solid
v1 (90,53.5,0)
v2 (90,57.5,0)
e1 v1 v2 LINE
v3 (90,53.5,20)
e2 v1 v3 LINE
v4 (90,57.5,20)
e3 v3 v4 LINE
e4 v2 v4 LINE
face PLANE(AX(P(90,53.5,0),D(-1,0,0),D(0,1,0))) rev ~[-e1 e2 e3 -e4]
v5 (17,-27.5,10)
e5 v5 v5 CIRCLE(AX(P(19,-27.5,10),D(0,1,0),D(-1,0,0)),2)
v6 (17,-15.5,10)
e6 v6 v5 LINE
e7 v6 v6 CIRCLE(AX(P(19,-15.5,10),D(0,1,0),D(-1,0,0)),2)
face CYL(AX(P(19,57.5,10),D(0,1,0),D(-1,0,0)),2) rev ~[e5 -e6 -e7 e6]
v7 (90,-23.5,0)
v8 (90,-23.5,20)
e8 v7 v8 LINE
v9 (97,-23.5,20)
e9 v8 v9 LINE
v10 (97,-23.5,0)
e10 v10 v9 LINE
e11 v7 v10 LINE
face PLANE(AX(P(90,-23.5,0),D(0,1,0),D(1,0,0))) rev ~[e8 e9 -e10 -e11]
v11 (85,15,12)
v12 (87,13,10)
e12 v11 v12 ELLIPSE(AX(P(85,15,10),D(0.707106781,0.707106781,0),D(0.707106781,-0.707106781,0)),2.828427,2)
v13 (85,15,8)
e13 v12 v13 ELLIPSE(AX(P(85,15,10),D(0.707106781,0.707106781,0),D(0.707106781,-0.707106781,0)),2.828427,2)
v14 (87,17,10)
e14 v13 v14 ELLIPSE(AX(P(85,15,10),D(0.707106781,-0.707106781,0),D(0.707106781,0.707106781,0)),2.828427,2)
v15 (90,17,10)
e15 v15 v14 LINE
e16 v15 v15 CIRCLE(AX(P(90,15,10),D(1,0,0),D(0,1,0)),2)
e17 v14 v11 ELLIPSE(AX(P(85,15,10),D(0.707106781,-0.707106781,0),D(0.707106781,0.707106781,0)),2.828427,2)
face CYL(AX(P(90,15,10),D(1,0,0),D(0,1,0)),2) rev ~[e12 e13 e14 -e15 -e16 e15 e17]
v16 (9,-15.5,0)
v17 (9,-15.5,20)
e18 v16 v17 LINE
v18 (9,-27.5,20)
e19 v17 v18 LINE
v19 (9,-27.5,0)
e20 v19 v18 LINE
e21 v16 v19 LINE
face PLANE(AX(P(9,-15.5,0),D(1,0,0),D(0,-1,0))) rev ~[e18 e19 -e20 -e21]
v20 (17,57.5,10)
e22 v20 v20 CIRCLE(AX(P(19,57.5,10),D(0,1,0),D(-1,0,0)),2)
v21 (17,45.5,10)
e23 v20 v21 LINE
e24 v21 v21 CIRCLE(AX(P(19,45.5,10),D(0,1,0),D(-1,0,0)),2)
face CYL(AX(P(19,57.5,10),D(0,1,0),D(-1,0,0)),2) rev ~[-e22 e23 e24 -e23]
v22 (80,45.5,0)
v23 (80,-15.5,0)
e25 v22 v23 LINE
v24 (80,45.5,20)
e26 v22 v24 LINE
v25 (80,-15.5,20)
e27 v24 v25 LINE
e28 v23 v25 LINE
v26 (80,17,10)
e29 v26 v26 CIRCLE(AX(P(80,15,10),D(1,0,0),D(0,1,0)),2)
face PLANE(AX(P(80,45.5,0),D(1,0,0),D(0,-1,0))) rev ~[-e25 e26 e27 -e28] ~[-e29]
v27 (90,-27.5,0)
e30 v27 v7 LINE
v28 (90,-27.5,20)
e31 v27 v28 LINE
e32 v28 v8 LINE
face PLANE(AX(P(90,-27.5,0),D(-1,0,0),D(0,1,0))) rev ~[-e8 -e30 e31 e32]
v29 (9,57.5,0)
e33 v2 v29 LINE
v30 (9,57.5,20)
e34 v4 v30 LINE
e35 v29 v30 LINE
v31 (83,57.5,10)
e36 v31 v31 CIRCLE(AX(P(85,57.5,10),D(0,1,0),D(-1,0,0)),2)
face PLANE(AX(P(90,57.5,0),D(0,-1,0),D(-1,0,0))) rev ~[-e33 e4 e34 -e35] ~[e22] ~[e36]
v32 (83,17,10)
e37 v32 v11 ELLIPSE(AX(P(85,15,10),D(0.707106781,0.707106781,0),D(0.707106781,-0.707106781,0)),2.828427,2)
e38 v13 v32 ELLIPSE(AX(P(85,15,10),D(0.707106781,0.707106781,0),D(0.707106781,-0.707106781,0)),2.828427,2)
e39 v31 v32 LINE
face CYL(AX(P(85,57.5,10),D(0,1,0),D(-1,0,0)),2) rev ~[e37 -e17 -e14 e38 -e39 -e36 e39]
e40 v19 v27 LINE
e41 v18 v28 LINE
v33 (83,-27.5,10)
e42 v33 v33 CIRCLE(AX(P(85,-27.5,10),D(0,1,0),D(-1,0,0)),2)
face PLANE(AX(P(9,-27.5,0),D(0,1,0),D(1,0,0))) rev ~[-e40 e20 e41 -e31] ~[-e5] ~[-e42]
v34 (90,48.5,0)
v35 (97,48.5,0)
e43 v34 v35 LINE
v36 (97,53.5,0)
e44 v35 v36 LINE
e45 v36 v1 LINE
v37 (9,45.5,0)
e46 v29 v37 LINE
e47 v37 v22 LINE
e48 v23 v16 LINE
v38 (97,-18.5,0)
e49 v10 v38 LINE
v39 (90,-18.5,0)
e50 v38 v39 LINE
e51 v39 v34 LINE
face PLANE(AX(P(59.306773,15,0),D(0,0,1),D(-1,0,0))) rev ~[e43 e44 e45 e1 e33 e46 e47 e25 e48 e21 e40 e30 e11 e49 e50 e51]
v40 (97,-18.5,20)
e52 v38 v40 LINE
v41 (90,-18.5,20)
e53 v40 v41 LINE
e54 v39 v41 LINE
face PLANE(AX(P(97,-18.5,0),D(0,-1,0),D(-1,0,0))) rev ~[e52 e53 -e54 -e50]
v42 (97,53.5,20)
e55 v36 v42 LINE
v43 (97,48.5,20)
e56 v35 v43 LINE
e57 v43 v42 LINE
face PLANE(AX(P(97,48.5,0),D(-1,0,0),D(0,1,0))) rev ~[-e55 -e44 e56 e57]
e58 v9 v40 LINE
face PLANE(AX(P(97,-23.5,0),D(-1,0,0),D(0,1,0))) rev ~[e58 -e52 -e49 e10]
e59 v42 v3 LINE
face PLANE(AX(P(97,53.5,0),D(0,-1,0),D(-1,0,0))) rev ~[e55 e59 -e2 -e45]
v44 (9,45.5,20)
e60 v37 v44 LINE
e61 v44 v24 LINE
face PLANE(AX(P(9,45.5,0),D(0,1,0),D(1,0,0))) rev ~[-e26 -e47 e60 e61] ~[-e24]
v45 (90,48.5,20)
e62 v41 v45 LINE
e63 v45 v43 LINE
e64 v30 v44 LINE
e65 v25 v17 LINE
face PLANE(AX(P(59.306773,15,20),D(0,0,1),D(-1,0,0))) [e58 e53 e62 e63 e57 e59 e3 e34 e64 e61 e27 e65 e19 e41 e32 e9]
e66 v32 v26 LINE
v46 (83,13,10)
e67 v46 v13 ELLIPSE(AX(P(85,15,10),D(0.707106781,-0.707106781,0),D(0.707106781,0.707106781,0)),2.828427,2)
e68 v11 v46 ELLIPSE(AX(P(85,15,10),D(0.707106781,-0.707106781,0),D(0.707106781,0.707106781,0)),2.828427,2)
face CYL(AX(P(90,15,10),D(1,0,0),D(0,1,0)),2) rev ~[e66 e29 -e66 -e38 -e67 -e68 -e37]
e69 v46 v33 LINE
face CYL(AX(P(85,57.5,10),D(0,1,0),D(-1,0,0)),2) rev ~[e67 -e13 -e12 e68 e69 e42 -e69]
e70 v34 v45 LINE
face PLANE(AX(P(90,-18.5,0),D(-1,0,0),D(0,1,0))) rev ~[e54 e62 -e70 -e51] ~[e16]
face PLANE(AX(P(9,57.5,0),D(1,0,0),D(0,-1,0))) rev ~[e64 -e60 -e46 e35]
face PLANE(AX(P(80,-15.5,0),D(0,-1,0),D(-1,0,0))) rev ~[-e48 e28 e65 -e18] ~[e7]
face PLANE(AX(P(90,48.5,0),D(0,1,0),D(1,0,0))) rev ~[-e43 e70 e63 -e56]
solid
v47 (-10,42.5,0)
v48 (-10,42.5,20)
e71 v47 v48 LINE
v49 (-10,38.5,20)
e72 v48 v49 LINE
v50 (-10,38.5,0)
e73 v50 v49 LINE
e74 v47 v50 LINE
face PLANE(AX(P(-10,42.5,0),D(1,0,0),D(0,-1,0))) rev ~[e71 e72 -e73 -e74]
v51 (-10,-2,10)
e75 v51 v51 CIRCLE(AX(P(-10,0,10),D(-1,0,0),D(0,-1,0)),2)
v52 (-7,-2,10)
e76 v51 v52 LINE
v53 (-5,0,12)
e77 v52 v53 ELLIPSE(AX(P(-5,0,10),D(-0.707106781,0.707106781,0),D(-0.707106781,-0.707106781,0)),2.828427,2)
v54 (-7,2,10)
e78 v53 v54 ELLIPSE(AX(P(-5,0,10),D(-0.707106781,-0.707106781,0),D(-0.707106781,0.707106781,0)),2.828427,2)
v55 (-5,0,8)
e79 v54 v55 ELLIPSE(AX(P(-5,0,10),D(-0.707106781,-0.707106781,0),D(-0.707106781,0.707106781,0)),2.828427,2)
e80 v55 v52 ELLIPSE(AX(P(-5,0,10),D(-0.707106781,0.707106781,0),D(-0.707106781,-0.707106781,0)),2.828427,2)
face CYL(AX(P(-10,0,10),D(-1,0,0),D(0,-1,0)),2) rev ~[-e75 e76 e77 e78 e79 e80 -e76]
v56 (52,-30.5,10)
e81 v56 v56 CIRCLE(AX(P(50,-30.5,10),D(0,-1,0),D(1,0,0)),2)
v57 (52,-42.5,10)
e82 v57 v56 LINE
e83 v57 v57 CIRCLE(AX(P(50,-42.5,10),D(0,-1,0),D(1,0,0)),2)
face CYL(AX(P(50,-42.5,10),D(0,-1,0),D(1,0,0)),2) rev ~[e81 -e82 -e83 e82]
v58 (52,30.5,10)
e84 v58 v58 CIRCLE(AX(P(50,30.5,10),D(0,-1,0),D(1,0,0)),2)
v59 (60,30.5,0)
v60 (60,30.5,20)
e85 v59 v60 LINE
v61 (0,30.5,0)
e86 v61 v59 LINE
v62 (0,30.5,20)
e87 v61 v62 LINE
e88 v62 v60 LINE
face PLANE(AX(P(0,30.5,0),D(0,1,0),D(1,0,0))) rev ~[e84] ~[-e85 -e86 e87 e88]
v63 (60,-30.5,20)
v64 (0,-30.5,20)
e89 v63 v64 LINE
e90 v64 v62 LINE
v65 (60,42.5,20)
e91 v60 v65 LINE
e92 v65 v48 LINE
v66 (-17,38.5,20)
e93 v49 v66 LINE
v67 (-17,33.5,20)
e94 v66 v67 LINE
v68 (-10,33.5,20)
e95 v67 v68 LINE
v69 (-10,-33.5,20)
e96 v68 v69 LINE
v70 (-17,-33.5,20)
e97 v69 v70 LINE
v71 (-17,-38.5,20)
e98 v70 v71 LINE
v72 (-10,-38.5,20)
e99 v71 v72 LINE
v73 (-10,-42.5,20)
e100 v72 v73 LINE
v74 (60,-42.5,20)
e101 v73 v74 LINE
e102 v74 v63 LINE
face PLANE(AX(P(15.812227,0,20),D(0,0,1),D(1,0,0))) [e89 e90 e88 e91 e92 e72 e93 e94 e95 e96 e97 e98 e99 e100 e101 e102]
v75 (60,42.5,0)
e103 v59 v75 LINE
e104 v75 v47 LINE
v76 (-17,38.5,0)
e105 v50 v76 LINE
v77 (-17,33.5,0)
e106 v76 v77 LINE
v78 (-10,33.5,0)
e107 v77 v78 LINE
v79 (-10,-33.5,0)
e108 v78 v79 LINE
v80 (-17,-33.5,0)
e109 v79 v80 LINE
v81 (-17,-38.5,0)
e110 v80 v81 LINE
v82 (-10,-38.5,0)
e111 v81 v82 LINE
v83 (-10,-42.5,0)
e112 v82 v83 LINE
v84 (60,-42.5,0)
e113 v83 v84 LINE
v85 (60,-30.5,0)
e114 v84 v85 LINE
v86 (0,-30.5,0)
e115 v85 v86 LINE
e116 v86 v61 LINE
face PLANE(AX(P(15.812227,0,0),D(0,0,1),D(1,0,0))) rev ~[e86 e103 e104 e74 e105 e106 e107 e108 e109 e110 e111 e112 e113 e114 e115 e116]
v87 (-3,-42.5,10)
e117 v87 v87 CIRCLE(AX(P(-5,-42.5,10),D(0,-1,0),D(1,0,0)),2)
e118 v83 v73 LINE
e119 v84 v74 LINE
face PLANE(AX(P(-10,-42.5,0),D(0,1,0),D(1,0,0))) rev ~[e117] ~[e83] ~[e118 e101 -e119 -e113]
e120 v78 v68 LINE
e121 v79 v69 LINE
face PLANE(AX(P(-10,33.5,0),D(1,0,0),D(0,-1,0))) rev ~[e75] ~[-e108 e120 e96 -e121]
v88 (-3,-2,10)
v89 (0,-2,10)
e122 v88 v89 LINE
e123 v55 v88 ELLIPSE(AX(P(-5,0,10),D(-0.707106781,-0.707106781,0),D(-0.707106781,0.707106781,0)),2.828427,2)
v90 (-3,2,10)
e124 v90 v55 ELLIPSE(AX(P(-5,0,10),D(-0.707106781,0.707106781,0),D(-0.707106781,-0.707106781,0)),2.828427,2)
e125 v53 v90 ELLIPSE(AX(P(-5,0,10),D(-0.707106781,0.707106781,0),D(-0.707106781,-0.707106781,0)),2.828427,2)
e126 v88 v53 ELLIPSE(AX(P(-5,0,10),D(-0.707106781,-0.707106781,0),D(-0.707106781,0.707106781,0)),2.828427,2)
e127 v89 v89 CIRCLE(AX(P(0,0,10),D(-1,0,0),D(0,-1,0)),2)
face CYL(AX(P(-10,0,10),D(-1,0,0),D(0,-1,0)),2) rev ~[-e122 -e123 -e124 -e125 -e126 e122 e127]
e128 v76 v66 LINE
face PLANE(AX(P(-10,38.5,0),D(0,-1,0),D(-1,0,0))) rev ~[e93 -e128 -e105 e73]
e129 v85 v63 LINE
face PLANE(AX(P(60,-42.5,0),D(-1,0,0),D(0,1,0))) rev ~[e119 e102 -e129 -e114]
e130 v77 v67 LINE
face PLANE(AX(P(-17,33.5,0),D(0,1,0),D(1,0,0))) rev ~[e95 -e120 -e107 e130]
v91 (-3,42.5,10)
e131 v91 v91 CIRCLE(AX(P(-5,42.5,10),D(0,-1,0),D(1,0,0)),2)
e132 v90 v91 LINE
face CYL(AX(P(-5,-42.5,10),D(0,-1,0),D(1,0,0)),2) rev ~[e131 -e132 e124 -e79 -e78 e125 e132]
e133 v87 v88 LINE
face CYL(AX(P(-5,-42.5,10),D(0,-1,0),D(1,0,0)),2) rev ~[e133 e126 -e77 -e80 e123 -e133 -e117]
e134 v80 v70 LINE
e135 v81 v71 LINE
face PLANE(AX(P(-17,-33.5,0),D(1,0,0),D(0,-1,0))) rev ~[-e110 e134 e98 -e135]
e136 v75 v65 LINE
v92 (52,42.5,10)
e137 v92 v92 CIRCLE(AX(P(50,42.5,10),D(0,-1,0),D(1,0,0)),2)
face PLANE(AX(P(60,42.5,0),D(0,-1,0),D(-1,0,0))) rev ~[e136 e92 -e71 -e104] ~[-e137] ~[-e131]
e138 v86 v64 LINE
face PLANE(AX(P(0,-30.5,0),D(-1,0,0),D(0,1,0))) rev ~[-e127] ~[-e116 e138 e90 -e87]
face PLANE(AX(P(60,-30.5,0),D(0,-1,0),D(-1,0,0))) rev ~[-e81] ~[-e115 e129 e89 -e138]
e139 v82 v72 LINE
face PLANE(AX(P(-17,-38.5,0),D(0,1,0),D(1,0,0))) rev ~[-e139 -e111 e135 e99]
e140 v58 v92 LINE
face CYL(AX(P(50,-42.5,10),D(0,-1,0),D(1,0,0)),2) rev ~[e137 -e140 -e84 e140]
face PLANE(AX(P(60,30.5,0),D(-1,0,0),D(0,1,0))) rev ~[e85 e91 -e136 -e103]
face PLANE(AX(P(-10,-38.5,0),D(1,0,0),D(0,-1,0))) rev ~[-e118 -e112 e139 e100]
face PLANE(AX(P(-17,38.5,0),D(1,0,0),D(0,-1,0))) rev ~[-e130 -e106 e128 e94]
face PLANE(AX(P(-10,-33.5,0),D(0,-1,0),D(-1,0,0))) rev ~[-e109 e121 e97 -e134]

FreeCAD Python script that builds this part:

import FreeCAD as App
import Part
import Sketcher

doc = App.newDocument("Part")
params = doc.addObject("Spreadsheet::Sheet", "Params")
for row, (alias, value) in enumerate([
    ("sketch1_width", "70 mm"),
    ("sketch1_width2", "60 mm"),
    ("sketch1_width3", "7 mm"),
    ("sketch1_height", "12 mm"),
    ("sketch1_height2", "61 mm"),
    ("pad1_length", "20 mm"),
    ("sketch2_diameter", "4 mm"),
    ("sketch3_diameter", "4 mm"),
    ("sketch4_width", "81 mm"),
    ("sketch4_width2", "71 mm"),
    ("sketch4_width3", "7 mm"),
    ("sketch4_height", "12 mm"),
    ("sketch4_height2", "61 mm"),
    ("pad2_length", "20 mm"),
    ("sketch5_diameter", "4 mm"),
    ("sketch6_diameter", "4 mm"),
], start=1):
    params.set(f"A{row}", alias)
    params.set(f"B{row}", "=" + value)
    params.setAlias(f"B{row}", alias)

body = doc.addObject("PartDesign::Body", "Body")

sketch1 = doc.addObject("Sketcher::SketchObject", "Sketch")
body.addObject(sketch1)
sketch1.AttachmentSupport = (doc.XY_Plane, [""])
sketch1.MapMode = "FlatFace"
sketch1.addGeometry([
    Part.LineSegment(App.Vector(-10, -42.5, 0), App.Vector(60, -42.5, 0)),
    Part.LineSegment(App.Vector(60, -42.5, 0), App.Vector(60, -30.5, 0)),
    Part.LineSegment(App.Vector(60, -30.5, 0), App.Vector(0, -30.5, 0)),
    Part.LineSegment(App.Vector(0, -30.5, 0), App.Vector(0, 30.5, 0)),
    Part.LineSegment(App.Vector(0, 30.5, 0), App.Vector(60, 30.5, 0)),
    Part.LineSegment(App.Vector(60, 30.5, 0), App.Vector(60, 42.5, 0)),
    Part.LineSegment(App.Vector(60, 42.5, 0), App.Vector(-10, 42.5, 0)),
    Part.LineSegment(App.Vector(-10, 42.5, 0), App.Vector(-10, 38.5, 0)),
    Part.LineSegment(App.Vector(-10, 38.5, 0), App.Vector(-17, 38.5, 0)),
    Part.LineSegment(App.Vector(-17, 38.5, 0), App.Vector(-17, 33.5, 0)),
    Part.LineSegment(App.Vector(-17, 33.5, 0), App.Vector(-10, 33.5, 0)),
    Part.LineSegment(App.Vector(-10, 33.5, 0), App.Vector(-10, -33.5, 0)),
    Part.LineSegment(App.Vector(-10, -33.5, 0), App.Vector(-17, -33.5, 0)),
    Part.LineSegment(App.Vector(-17, -33.5, 0), App.Vector(-17, -38.5, 0)),
    Part.LineSegment(App.Vector(-17, -38.5, 0), App.Vector(-10, -38.5, 0)),
    Part.LineSegment(App.Vector(-10, -38.5, 0), App.Vector(-10, -42.5, 0)),
], False)
sketch1.addConstraint([
    Sketcher.Constraint("Coincident", 0, 2, 1, 1),
    Sketcher.Constraint("Coincident", 1, 2, 2, 1),
    Sketcher.Constraint("Coincident", 2, 2, 3, 1),
    Sketcher.Constraint("Coincident", 3, 2, 4, 1),
    Sketcher.Constraint("Coincident", 4, 2, 5, 1),
    Sketcher.Constraint("Coincident", 5, 2, 6, 1),
    Sketcher.Constraint("Coincident", 6, 2, 7, 1),
    Sketcher.Constraint("Coincident", 7, 2, 8, 1),
    Sketcher.Constraint("Coincident", 8, 2, 9, 1),
    Sketcher.Constraint("Coincident", 9, 2, 10, 1),
    Sketcher.Constraint("Coincident", 10, 2, 11, 1),
    Sketcher.Constraint("Coincident", 11, 2, 12, 1),
    Sketcher.Constraint("Coincident", 12, 2, 13, 1),
    Sketcher.Constraint("Coincident", 13, 2, 14, 1),
    Sketcher.Constraint("Coincident", 14, 2, 15, 1),
    Sketcher.Constraint("Coincident", 15, 2, 0, 1),
    Sketcher.Constraint("Horizontal", 0),
    Sketcher.Constraint("Vertical", 1),
    Sketcher.Constraint("Horizontal", 2),
    Sketcher.Constraint("Vertical", 3),
    Sketcher.Constraint("Horizontal", 4),
    Sketcher.Constraint("Vertical", 5),
    Sketcher.Constraint("Horizontal", 6),
    Sketcher.Constraint("Vertical", 7),
    Sketcher.Constraint("Horizontal", 8),
    Sketcher.Constraint("Vertical", 9),
    Sketcher.Constraint("Horizontal", 10),
    Sketcher.Constraint("Vertical", 11),
    Sketcher.Constraint("Horizontal", 12),
    Sketcher.Constraint("Vertical", 13),
    Sketcher.Constraint("Horizontal", 14),
    Sketcher.Constraint("Vertical", 15),
    Sketcher.Constraint("Symmetric", 2, 2, 3, 2, -1, 1),
    Sketcher.Constraint("Symmetric", 0, 2, 5, 2, -1),
    Sketcher.Constraint("Symmetric", 9, 2, 12, 2, -1),
    Sketcher.Constraint("Symmetric", 7, 2, 14, 2, -1),
    Sketcher.Constraint("Vertical", 7, 2, 10, 2),
    Sketcher.Constraint("DistanceX", 0, 1, 0, 2, 70.0),
    Sketcher.Constraint("DistanceX", 2, 2, 2, 1, 60.0),
    Sketcher.Constraint("DistanceX", 8, 2, 8, 1, 7.0),
    Sketcher.Constraint("DistanceY", 1, 1, 1, 2, 12.0),
    Sketcher.Constraint("DistanceY", 3, 1, 3, 2, 61.0),
    Sketcher.Constraint("DistanceY", 7, 2, 7, 1, 4.0),
    Sketcher.Constraint("DistanceY", 9, 2, 9, 1, 5.0),
])
sketch1.setExpression("Constraints[37]", "Params.sketch1_width")
sketch1.setExpression("Constraints[38]", "Params.sketch1_width2")
sketch1.setExpression("Constraints[39]", "Params.sketch1_width3")
sketch1.setExpression("Constraints[40]", "Params.sketch1_height")
sketch1.setExpression("Constraints[41]", "Params.sketch1_height2")
pad1 = doc.addObject("PartDesign::Pad", "Pad")
body.addObject(pad1)
pad1.Profile = sketch1
pad1.setExpression("Length", "Params.pad1_length")

sketch2 = doc.addObject("Sketcher::SketchObject", "Sketch001")
body.addObject(sketch2)
sketch2.AttachmentSupport = (doc.YZ_Plane, [""])
sketch2.MapMode = "FlatFace"
sketch2.AttachmentOffset = App.Placement(App.Vector(0, 0, -10), App.Rotation())
sketch2.addGeometry(Part.Circle(App.Vector(0, 10, 0), App.Vector(0, 0, 1), 2), False)
sketch2.addConstraint([
    Sketcher.Constraint("PointOnObject", 0, 3, -2),
    Sketcher.Constraint("Diameter", 0, 4.0),
    Sketcher.Constraint("DistanceY", -1, 1, 0, 3, 10.0),
])
sketch2.setExpression("Constraints[1]", "Params.sketch2_diameter")
pocket1 = doc.addObject("PartDesign::Pocket", "Pocket")
body.addObject(pocket1)
pocket1.Profile = sketch2
pocket1.Type = "ThroughAll"
pocket1.Reversed = True

sketch3 = doc.addObject("Sketcher::SketchObject", "Sketch002")
body.addObject(sketch3)
sketch3.AttachmentSupport = (doc.XZ_Plane, [""])
sketch3.MapMode = "FlatFace"
sketch3.AttachmentOffset = App.Placement(App.Vector(0, 0, 42.5), App.Rotation())
sketch3.addGeometry([
    Part.Circle(App.Vector(-5, 10, 0), App.Vector(0, 0, 1), 2),
    Part.Circle(App.Vector(50, 10, 0), App.Vector(0, 0, 1), 2),
], False)
sketch3.addConstraint([
    Sketcher.Constraint("Equal", 0, 1),
    Sketcher.Constraint("Horizontal", 0, 3, 1, 3),
    Sketcher.Constraint("Diameter", 0, 4.0),
    Sketcher.Constraint("DistanceX", 0, 3, -1, 1, 5.0),
    Sketcher.Constraint("DistanceY", -1, 1, 0, 3, 10.0),
    Sketcher.Constraint("DistanceX", -1, 1, 1, 3, 50.0),
])
sketch3.setExpression("Constraints[2]", "Params.sketch3_diameter")
pocket2 = doc.addObject("PartDesign::Pocket", "Pocket001")
body.addObject(pocket2)
pocket2.Profile = sketch3
pocket2.Type = "ThroughAll"
body2 = doc.addObject("PartDesign::Body", "Body001")

sketch4 = doc.addObject("Sketcher::SketchObject", "Sketch003")
body2.addObject(sketch4)
sketch4.AttachmentSupport = (doc.getObject("XY_Plane001"), [""])
sketch4.MapMode = "FlatFace"
sketch4.addGeometry([
    Part.LineSegment(App.Vector(90, 57.5, 0), App.Vector(9, 57.5, 0)),
    Part.LineSegment(App.Vector(9, 57.5, 0), App.Vector(9, 45.5, 0)),
    Part.LineSegment(App.Vector(9, 45.5, 0), App.Vector(80, 45.5, 0)),
    Part.LineSegment(App.Vector(80, 45.5, 0), App.Vector(80, -15.5, 0)),
    Part.LineSegment(App.Vector(80, -15.5, 0), App.Vector(9, -15.5, 0)),
    Part.LineSegment(App.Vector(9, -15.5, 0), App.Vector(9, -27.5, 0)),
    Part.LineSegment(App.Vector(9, -27.5, 0), App.Vector(90, -27.5, 0)),
    Part.LineSegment(App.Vector(90, -27.5, 0), App.Vector(90, -23.5, 0)),
    Part.LineSegment(App.Vector(90, -23.5, 0), App.Vector(97, -23.5, 0)),
    Part.LineSegment(App.Vector(97, -23.5, 0), App.Vector(97, -18.5, 0)),
    Part.LineSegment(App.Vector(97, -18.5, 0), App.Vector(90, -18.5, 0)),
    Part.LineSegment(App.Vector(90, -18.5, 0), App.Vector(90, 48.5, 0)),
    Part.LineSegment(App.Vector(90, 48.5, 0), App.Vector(97, 48.5, 0)),
    Part.LineSegment(App.Vector(97, 48.5, 0), App.Vector(97, 53.5, 0)),
    Part.LineSegment(App.Vector(97, 53.5, 0), App.Vector(90, 53.5, 0)),
    Part.LineSegment(App.Vector(90, 53.5, 0), App.Vector(90, 57.5, 0)),
], False)
sketch4.addConstraint([
    Sketcher.Constraint("Coincident", 0, 2, 1, 1),
    Sketcher.Constraint("Coincident", 1, 2, 2, 1),
    Sketcher.Constraint("Coincident", 2, 2, 3, 1),
    Sketcher.Constraint("Coincident", 3, 2, 4, 1),
    Sketcher.Constraint("Coincident", 4, 2, 5, 1),
    Sketcher.Constraint("Coincident", 5, 2, 6, 1),
    Sketcher.Constraint("Coincident", 6, 2, 7, 1),
    Sketcher.Constraint("Coincident", 7, 2, 8, 1),
    Sketcher.Constraint("Coincident", 8, 2, 9, 1),
    Sketcher.Constraint("Coincident", 9, 2, 10, 1),
    Sketcher.Constraint("Coincident", 10, 2, 11, 1),
    Sketcher.Constraint("Coincident", 11, 2, 12, 1),
    Sketcher.Constraint("Coincident", 12, 2, 13, 1),
    Sketcher.Constraint("Coincident", 13, 2, 14, 1),
    Sketcher.Constraint("Coincident", 14, 2, 15, 1),
    Sketcher.Constraint("Coincident", 15, 2, 0, 1),
    Sketcher.Constraint("Horizontal", 0),
    Sketcher.Constraint("Vertical", 1),
    Sketcher.Constraint("Horizontal", 2),
    Sketcher.Constraint("Vertical", 3),
    Sketcher.Constraint("Horizontal", 4),
    Sketcher.Constraint("Vertical", 5),
    Sketcher.Constraint("Horizontal", 6),
    Sketcher.Constraint("Vertical", 7),
    Sketcher.Constraint("Horizontal", 8),
    Sketcher.Constraint("Vertical", 9),
    Sketcher.Constraint("Horizontal", 10),
    Sketcher.Constraint("Vertical", 11),
    Sketcher.Constraint("Horizontal", 12),
    Sketcher.Constraint("Vertical", 13),
    Sketcher.Constraint("Horizontal", 14),
    Sketcher.Constraint("Vertical", 15),
    Sketcher.Constraint("Vertical", 1, 2, 4, 2),
    Sketcher.Constraint("Vertical", 7, 2, 10, 2),
    Sketcher.Constraint("Vertical", 9, 2, 12, 2),
    Sketcher.Constraint("Vertical", 11, 2, 14, 2),
    Sketcher.Constraint("Equal", 1, 5),
    Sketcher.Constraint("Equal", 9, 13),
    Sketcher.Constraint("Equal", 7, 15),
    Sketcher.Constraint("DistanceX", 0, 2, 0, 1, 81.0),
    Sketcher.Constraint("DistanceX", 2, 1, 2, 2, 71.0),
    Sketcher.Constraint("DistanceX", 8, 1, 8, 2, 7.0),
    Sketcher.Constraint("DistanceY", 1, 2, 1, 1, 12.0),
    Sketcher.Constraint("DistanceY", 3, 2, 3, 1, 61.0),
    Sketcher.Constraint("DistanceY", 7, 1, 7, 2, 4.0),
    Sketcher.Constraint("DistanceY", 9, 1, 9, 2, 5.0),
    Sketcher.Constraint("DistanceX", -1, 1, 0, 2, 9.0),
    Sketcher.Constraint("DistanceY", -1, 1, 0, 2, 57.5),
])
sketch4.setExpression("Constraints[39]", "Params.sketch4_width")
sketch4.setExpression("Constraints[40]", "Params.sketch4_width2")
sketch4.setExpression("Constraints[41]", "Params.sketch4_width3")
sketch4.setExpression("Constraints[42]", "Params.sketch4_height")
sketch4.setExpression("Constraints[43]", "Params.sketch4_height2")
pad2 = doc.addObject("PartDesign::Pad", "Pad001")
body2.addObject(pad2)
pad2.Profile = sketch4
pad2.setExpression("Length", "Params.pad2_length")

sketch5 = doc.addObject("Sketcher::SketchObject", "Sketch004")
body2.addObject(sketch5)
sketch5.AttachmentSupport = (doc.getObject("YZ_Plane001"), [""])
sketch5.MapMode = "FlatFace"
sketch5.AttachmentOffset = App.Placement(App.Vector(0, 0, 90), App.Rotation())
sketch5.addGeometry(Part.Circle(App.Vector(15, 10, 0), App.Vector(0, 0, 1), 2), False)
sketch5.addConstraint([
    Sketcher.Constraint("Diameter", 0, 4.0),
    Sketcher.Constraint("DistanceX", -1, 1, 0, 3, 15.0),
    Sketcher.Constraint("DistanceY", -1, 1, 0, 3, 10.0),
])
sketch5.setExpression("Constraints[0]", "Params.sketch5_diameter")
pocket3 = doc.addObject("PartDesign::Pocket", "Pocket002")
body2.addObject(pocket3)
pocket3.Profile = sketch5
pocket3.Type = "ThroughAll"

sketch6 = doc.addObject("Sketcher::SketchObject", "Sketch005")
body2.addObject(sketch6)
sketch6.AttachmentSupport = (doc.getObject("XZ_Plane001"), [""])
sketch6.MapMode = "FlatFace"
sketch6.AttachmentOffset = App.Placement(App.Vector(0, 0, -57.5), App.Rotation())
sketch6.addGeometry([
    Part.Circle(App.Vector(85, 10, 0), App.Vector(0, 0, 1), 2),
    Part.Circle(App.Vector(19, 10, 0), App.Vector(0, 0, 1), 2),
], False)
sketch6.addConstraint([
    Sketcher.Constraint("Equal", 0, 1),
    Sketcher.Constraint("Horizontal", 0, 3, 1, 3),
    Sketcher.Constraint("Diameter", 0, 4.0),
    Sketcher.Constraint("DistanceX", -1, 1, 0, 3, 85.0),
    Sketcher.Constraint("DistanceY", -1, 1, 0, 3, 10.0),
    Sketcher.Constraint("DistanceX", -1, 1, 1, 3, 19.0),
])
sketch6.setExpression("Constraints[2]", "Params.sketch6_diameter")
pocket4 = doc.addObject("PartDesign::Pocket", "Pocket003")
body2.addObject(pocket4)
pocket4.Profile = sketch6
pocket4.Type = "ThroughAll"
pocket4.Reversed = True

doc.recompute()
